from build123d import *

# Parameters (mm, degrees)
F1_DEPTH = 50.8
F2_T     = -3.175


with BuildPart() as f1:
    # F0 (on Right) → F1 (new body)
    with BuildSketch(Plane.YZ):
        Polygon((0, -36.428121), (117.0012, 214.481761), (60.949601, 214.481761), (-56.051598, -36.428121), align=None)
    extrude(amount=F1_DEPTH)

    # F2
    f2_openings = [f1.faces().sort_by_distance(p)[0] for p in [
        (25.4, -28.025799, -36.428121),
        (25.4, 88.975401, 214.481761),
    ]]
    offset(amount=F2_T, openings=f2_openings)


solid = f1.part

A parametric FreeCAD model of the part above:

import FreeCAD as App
import Part
import Sketcher

V = App.Vector
Q = App.Units.Quantity


def faces_at(feature, points):
    """Names of the faces that lie closest to the given points."""
    faces = feature.Shape.Faces
    near = lambda p: min(range(len(faces)), key=lambda i: faces[i].distToShape(Part.Vertex(*p))[0])
    return sorted({f"Face{near(p) + 1}" for p in points})


def add_polygon(sketch, points):
    """Adds a closed chain of lines whose ends are joined by coincident constraints."""
    first, n = sketch.GeometryCount, len(points)
    for a, b in zip(points, points[1:] + points[:1]):
        sketch.addGeometry(Part.LineSegment(App.Vector(*a, 0), App.Vector(*b, 0)), False)
    for i in range(n):
        sketch.addConstraint(Sketcher.Constraint("Coincident", first + i, 2, first + (i + 1) % n, 1))

doc = App.newDocument("Part")
body = doc.addObject("PartDesign::Body", "Body")

# Sketch on YZ plane
sketch1 = body.newObject("Sketcher::SketchObject", "Sketch")
sketch1.AttachmentSupport = (doc.getObject("YZ_Plane"), [""])
sketch1.MapMode = "FlatFace"
add_polygon(sketch1, [(0, -36), (117, 214), (61, 214), (-56, -36)])  # lines 0-3
sketch1.addConstraint([
    Sketcher.Constraint("Horizontal", 1),
    Sketcher.Constraint("Horizontal", 3),
    Sketcher.Constraint("PointOnObject", 3, 2, -2),
    Sketcher.Constraint("Parallel", 0, 2),
    Sketcher.Constraint("Angle", 0, Q("65 deg")),
    Sketcher.Constraint("DistanceX", 1, 2, 1, 1, Q("56.051599 mm")),
    Sketcher.Constraint("DistanceX", -1, 1, 0, 2, Q("117.0012 mm")),
    Sketcher.Constraint("DistanceY", -1, 1, 0, 2, Q("214.481761 mm")),
])
pad1 = body.newObject("PartDesign::Pad", "Pad")
pad1.Profile = sketch1
pad1.Length = Q("2 in")
doc.recompute()

thickness = body.newObject("PartDesign::Thickness", "Thickness")
thickness.Base = (pad1, faces_at(pad1, [(25.4, -28.026, -36.428), (25.4, 88.975, 214.482)]))
thickness.Value = Q("0.125 in")
thickness.Reversed = True
thickness.Join = "Arc"

doc.recompute()
